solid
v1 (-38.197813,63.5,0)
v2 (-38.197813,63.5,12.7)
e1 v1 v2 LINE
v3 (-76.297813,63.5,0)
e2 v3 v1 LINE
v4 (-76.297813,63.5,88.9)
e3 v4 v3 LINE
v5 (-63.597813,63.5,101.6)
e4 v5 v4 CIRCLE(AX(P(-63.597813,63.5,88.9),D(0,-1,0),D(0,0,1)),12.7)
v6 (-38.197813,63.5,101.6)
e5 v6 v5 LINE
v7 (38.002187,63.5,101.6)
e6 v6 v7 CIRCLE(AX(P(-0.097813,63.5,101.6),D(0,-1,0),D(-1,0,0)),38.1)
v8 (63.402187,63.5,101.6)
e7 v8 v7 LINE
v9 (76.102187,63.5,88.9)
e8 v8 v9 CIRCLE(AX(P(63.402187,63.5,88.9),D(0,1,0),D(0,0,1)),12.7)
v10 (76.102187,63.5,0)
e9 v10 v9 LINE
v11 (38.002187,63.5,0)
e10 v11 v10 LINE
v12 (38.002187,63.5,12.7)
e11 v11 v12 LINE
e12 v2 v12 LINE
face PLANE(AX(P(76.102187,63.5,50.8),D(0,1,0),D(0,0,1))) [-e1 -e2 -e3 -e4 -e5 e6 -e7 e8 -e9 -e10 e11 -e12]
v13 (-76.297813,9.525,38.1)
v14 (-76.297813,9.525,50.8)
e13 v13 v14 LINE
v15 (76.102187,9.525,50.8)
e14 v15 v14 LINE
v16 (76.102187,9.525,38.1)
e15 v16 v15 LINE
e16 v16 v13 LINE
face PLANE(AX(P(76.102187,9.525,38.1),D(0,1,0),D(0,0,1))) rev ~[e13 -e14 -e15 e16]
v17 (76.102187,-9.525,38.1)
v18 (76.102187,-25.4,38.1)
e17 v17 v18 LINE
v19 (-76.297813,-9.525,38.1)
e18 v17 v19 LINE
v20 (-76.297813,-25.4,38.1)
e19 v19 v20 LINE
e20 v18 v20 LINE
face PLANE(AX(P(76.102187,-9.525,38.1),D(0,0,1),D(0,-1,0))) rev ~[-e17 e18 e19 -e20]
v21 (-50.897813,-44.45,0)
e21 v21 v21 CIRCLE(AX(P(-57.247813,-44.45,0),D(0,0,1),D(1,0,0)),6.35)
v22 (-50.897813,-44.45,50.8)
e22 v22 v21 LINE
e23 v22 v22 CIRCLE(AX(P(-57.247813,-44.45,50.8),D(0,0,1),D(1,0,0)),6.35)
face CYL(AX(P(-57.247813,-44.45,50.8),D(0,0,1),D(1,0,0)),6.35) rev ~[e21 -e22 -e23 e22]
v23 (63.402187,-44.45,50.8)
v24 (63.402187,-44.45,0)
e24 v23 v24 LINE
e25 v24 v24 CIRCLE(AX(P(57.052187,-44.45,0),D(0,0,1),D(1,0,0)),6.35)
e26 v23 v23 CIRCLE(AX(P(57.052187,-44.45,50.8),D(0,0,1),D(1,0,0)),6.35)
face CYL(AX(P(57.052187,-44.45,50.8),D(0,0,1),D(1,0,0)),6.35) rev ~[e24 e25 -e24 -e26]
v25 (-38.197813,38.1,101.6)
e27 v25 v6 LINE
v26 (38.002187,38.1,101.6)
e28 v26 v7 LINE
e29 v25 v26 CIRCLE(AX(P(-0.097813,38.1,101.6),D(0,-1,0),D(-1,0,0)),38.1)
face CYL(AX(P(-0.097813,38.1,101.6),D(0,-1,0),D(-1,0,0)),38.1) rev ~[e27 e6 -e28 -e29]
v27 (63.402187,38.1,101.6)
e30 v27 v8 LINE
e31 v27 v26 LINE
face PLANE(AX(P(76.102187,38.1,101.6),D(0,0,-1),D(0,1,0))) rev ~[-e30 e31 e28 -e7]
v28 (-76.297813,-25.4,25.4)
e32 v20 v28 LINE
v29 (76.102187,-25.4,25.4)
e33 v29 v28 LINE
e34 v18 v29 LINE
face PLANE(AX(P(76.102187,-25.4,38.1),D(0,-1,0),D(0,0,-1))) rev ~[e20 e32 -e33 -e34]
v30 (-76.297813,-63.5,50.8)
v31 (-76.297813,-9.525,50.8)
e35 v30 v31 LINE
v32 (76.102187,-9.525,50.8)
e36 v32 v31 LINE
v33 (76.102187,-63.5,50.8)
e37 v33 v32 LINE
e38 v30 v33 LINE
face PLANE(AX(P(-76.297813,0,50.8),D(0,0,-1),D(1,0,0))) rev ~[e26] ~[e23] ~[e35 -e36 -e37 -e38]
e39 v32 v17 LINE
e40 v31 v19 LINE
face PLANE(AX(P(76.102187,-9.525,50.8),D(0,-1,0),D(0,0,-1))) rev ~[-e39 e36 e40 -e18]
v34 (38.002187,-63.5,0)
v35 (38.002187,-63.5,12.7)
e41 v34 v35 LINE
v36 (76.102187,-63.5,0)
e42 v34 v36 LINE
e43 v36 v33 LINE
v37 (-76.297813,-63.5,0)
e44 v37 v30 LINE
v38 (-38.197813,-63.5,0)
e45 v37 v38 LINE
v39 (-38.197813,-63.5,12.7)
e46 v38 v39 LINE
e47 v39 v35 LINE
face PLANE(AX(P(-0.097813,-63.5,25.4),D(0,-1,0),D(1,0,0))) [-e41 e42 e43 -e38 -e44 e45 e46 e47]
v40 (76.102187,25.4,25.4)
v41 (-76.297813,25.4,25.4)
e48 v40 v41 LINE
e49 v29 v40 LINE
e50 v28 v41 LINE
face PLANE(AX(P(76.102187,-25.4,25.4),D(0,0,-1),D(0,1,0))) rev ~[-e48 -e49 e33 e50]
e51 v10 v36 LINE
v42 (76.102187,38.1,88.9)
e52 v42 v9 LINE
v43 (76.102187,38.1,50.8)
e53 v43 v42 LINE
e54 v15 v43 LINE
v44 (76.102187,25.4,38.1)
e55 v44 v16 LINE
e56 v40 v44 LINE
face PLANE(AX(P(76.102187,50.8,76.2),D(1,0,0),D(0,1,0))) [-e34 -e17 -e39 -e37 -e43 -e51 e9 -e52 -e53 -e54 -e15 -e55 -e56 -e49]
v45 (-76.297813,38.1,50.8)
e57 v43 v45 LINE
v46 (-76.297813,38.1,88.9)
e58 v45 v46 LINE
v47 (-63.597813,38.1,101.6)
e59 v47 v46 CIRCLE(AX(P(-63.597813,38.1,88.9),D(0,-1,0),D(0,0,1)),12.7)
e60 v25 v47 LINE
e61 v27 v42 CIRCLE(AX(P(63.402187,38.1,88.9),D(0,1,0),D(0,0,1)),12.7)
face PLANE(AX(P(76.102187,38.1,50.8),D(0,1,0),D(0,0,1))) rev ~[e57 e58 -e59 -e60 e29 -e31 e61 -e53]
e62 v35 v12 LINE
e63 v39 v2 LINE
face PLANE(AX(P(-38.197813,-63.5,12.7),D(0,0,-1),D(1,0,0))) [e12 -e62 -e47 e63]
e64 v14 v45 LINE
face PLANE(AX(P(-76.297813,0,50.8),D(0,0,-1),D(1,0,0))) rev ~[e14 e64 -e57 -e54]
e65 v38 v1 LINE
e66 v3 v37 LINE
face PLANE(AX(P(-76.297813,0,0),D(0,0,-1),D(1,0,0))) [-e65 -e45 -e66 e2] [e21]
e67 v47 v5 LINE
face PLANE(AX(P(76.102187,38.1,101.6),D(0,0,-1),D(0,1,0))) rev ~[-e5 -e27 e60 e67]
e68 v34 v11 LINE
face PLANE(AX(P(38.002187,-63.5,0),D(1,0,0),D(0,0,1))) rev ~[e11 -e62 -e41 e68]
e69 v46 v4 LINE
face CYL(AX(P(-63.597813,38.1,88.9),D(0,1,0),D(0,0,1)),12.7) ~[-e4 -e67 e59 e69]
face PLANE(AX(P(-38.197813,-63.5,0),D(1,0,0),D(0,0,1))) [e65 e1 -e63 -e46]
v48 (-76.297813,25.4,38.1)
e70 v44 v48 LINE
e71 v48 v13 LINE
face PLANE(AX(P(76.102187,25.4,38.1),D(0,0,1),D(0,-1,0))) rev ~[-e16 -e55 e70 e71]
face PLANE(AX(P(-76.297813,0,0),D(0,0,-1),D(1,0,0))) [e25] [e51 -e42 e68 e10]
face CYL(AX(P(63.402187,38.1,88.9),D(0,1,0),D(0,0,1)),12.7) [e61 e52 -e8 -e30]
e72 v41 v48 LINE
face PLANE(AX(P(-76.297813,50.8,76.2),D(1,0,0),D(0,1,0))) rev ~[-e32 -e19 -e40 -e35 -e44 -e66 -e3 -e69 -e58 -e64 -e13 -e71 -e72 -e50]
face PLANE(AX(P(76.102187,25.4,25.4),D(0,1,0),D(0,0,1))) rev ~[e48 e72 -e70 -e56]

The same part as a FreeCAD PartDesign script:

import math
import FreeCAD as App
import Part
import Sketcher
from FreeCAD import Vector
Q = App.Units.Quantity


def edges_at(feature, points):
    """Names of the edges that pass closest to the given points."""
    edges = feature.Shape.Edges
    near = lambda p: min(range(len(edges)), key=lambda i: edges[i].distToShape(Part.Vertex(*p))[0])
    return sorted({f"Edge{near(p) + 1}" for p in points})

doc = App.newDocument("Part")
body = doc.addObject("PartDesign::Body", "Body")

# Sketch on XZ plane
sketch1 = body.newObject("Sketcher::SketchObject", "Sketch")
sketch1.AttachmentSupport = (doc.getObject("XZ_Plane"), [""])
sketch1.MapMode = "FlatFace"
sketch1.addGeometry([
    Part.LineSegment(Vector(-76, 51, 0), Vector(-76, 0, 0)),
    Part.LineSegment(Vector(-76, 0, 0), Vector(76, 0, 0)),
    Part.LineSegment(Vector(76, 0, 0), Vector(76, 51, 0)),
    Part.LineSegment(Vector(76, 51, 0), Vector(-76, 51, 0)),
], False)
sketch1.addConstraint([
    Sketcher.Constraint("Coincident", 0, 2, 1, 1),
    Sketcher.Constraint("Coincident", 1, 2, 2, 1),
    Sketcher.Constraint("Coincident", 2, 2, 3, 1),
    Sketcher.Constraint("Coincident", 3, 2, 0, 1),
    Sketcher.Constraint("Vertical", 0),
    Sketcher.Constraint("Horizontal", 1),
    Sketcher.Constraint("Vertical", 2),
    Sketcher.Constraint("Horizontal", 3),
    Sketcher.Constraint("PointOnObject", 0, 2, -1),
    Sketcher.Constraint("DistanceX", 1, 1, 1, 2, Q("6 in")),
    Sketcher.Constraint("DistanceY", 0, 2, 0, 1, Q("2 in")),
    Sketcher.Constraint("DistanceX", 0, 2, -1, 1, 76.297813),
])
pad1 = body.newObject("PartDesign::Pad", "Pad")
pad1.Profile = sketch1
pad1.Length = Q("5 in")
pad1.Midplane = True

# Sketch on XZ plane
sketch2 = body.newObject("Sketcher::SketchObject", "Sketch001")
sketch2.AttachmentSupport = (doc.getObject("XZ_Plane"), [""])
sketch2.MapMode = "FlatFace"
sketch2.AttachmentOffset = App.Placement(Vector(0, 0, 2.5 * 25.4), App.Rotation())
sketch2.addGeometry([
    Part.LineSegment(Vector(-38, 13, 0), Vector(-38, 0, 0)),
    Part.LineSegment(Vector(-38, 0, 0), Vector(38, 0, 0)),
    Part.LineSegment(Vector(38, 0, 0), Vector(38, 13, 0)),
    Part.LineSegment(Vector(38, 13, 0), Vector(-38, 13, 0)),
], False)
sketch2.addConstraint([
    Sketcher.Constraint("Coincident", 0, 2, 1, 1),
    Sketcher.Constraint("Coincident", 1, 2, 2, 1),
    Sketcher.Constraint("Coincident", 2, 2, 3, 1),
    Sketcher.Constraint("Coincident", 3, 2, 0, 1),
    Sketcher.Constraint("Vertical", 0),
    Sketcher.Constraint("Horizontal", 1),
    Sketcher.Constraint("Vertical", 2),
    Sketcher.Constraint("Horizontal", 3),
    Sketcher.Constraint("PointOnObject", 0, 2, -1),
    Sketcher.Constraint("DistanceX", 1, 1, 1, 2, Q("3 in")),
    Sketcher.Constraint("DistanceY", 0, 2, 0, 1, Q("0.5 in")),
    Sketcher.Constraint("DistanceX", 0, 2, -1, 1, 38.197813),
])
pocket1 = body.newObject("PartDesign::Pocket", "Pocket")
pocket1.Profile = sketch2
pocket1.Type = "ThroughAll"

# Sketch on YZ plane
sketch3 = body.newObject("Sketcher::SketchObject", "Sketch002")
sketch3.AttachmentSupport = (doc.getObject("YZ_Plane"), [""])
sketch3.MapMode = "FlatFace"
sketch3.AttachmentOffset = App.Placement(Vector(0, 0, 76.102187), App.Rotation())
sketch3.addGeometry([
    Part.LineSegment(Vector(-25, 38, 0), Vector(-25, 25, 0)),  # 0
    Part.LineSegment(Vector(-25, 25, 0), Vector(25, 25, 0)),  # 1
    Part.LineSegment(Vector(25, 25, 0), Vector(25, 38, 0)),  # 2
    Part.LineSegment(Vector(25, 38, 0), Vector(10, 38, 0)),  # 3
    Part.LineSegment(Vector(10, 38, 0), Vector(10, 51, 0)),  # 4
    Part.LineSegment(Vector(10, 51, 0), Vector(-10, 51, 0)),  # 5
    Part.LineSegment(Vector(-10, 51, 0), Vector(-10, 38, 0)),  # 6
    Part.LineSegment(Vector(-10, 38, 0), Vector(-25, 38, 0)),  # 7
], False)
sketch3.addConstraint([
    Sketcher.Constraint("Coincident", 0, 2, 1, 1),
    Sketcher.Constraint("Coincident", 1, 2, 2, 1),
    Sketcher.Constraint("Coincident", 2, 2, 3, 1),
    Sketcher.Constraint("Coincident", 3, 2, 4, 1),
    Sketcher.Constraint("Coincident", 4, 2, 5, 1),
    Sketcher.Constraint("Coincident", 5, 2, 6, 1),
    Sketcher.Constraint("Coincident", 6, 2, 7, 1),
    Sketcher.Constraint("Coincident", 7, 2, 0, 1),
    Sketcher.Constraint("Vertical", 0),
    Sketcher.Constraint("Horizontal", 1),
    Sketcher.Constraint("Vertical", 2),
    Sketcher.Constraint("Horizontal", 3),
    Sketcher.Constraint("Vertical", 4),
    Sketcher.Constraint("Horizontal", 5),
    Sketcher.Constraint("Vertical", 6),
    Sketcher.Constraint("Horizontal", 7),
    Sketcher.Constraint("Symmetric", 3, 2, 6, 2, -2),
    Sketcher.Constraint("Equal", 3, 7),
    Sketcher.Constraint("Equal", 2, 4),
    Sketcher.Constraint("DistanceX", 1, 1, 1, 2, Q("2 in")),
    Sketcher.Constraint("DistanceY", 0, 2, 0, 1, Q("0.5 in")),
    Sketcher.Constraint("DistanceY", -1, 1, 0, 2, Q("1 in")),
    Sketcher.Constraint("DistanceX", 5, 2, 5, 1, Q("0.75 in")),
])
pocket2 = body.newObject("PartDesign::Pocket", "Pocket001")
pocket2.Profile = sketch3
pocket2.Type = "ThroughAll"

# Sketch on YZ plane
sketch4 = body.newObject("Sketcher::SketchObject", "Sketch003")
sketch4.AttachmentSupport = (doc.getObject("YZ_Plane"), [""])
sketch4.MapMode = "FlatFace"
sketch4.AttachmentOffset = App.Placement(Vector(0, 0, 76.102187), App.Rotation())
sketch4.addGeometry([
    Part.LineSegment(Vector(38, 102, 0), Vector(38, 51, 0)),
    Part.LineSegment(Vector(38, 51, 0), Vector(64, 51, 0)),
    Part.LineSegment(Vector(64, 51, 0), Vector(64, 102, 0)),
    Part.LineSegment(Vector(64, 102, 0), Vector(38, 102, 0)),
], False)
sketch4.addConstraint([
    Sketcher.Constraint("Coincident", 0, 2, 1, 1),
    Sketcher.Constraint("Coincident", 1, 2, 2, 1),
    Sketcher.Constraint("Coincident", 2, 2, 3, 1),
    Sketcher.Constraint("Coincident", 3, 2, 0, 1),
    Sketcher.Constraint("Vertical", 0),
    Sketcher.Constraint("Horizontal", 1),
    Sketcher.Constraint("Vertical", 2),
    Sketcher.Constraint("Horizontal", 3),
    Sketcher.Constraint("DistanceX", 1, 1, 1, 2, Q("1 in")),
    Sketcher.Constraint("DistanceY", 0, 2, 0, 1, Q("2 in")),
    Sketcher.Constraint("DistanceY", -1, 1, 0, 2, Q("2 in")),
    Sketcher.Constraint("DistanceX", -1, 1, 0, 2, Q("1.5 in")),
])
pad2 = body.newObject("PartDesign::Pad", "Pad001")
pad2.Profile = sketch4
pad2.Length = Q("6 in")
pad2.Reversed = True

# Sketch on XZ plane
sketch5 = body.newObject("Sketcher::SketchObject", "Sketch004")
sketch5.AttachmentSupport = (doc.getObject("XZ_Plane"), [""])
sketch5.MapMode = "FlatFace"
sketch5.AttachmentOffset = App.Placement(Vector(0, 0, -1.5 * 25.4), App.Rotation())
sketch5.addGeometry([
    Part.LineSegment(Vector(38, 102, 0), Vector(-38, 102, 0)),
    Part.ArcOfCircle(Part.Circle(Vector(0, 102, 0), Vector(0, 0, 1), 38), math.radians(180), math.radians(360)),
], False)
sketch5.addConstraint([
    Sketcher.Constraint("Coincident", 0, 1, 1, 2),
    Sketcher.Constraint("Coincident", 1, 1, 0, 2),
    Sketcher.Constraint("Horizontal", 0),
    Sketcher.Constraint("Horizontal", 1, 3, 0, 1),
    Sketcher.Constraint("Radius", 1, Q("1.5 in")),
    Sketcher.Constraint("DistanceY", -1, 1, 1, 3, Q("4 in")),
    Sketcher.Constraint("DistanceX", 1, 3, -1, 1, 0.097813),
])
pocket3 = body.newObject("PartDesign::Pocket", "Pocket002")
pocket3.Profile = sketch5
pocket3.Type = "ThroughAll"
doc.recompute()

fillet = body.newObject("PartDesign::Fillet", "Fillet")
fillet.Base = (pocket3, edges_at(pocket3, [(-76.298, 50.8, 101.6)]))
fillet.Radius = Q("0.5 in")
doc.recompute()

fillet2 = body.newObject("PartDesign::Fillet", "Fillet001")
fillet2.Base = (fillet, edges_at(fillet, [(76.102, 50.8, 101.6)]))
fillet2.Radius = Q("0.5 in")

# Sketch on XY plane
sketch6 = body.newObject("Sketcher::SketchObject", "Sketch005")
sketch6.AttachmentSupport = (doc.getObject("XY_Plane"), [""])
sketch6.MapMode = "FlatFace"
sketch6.AttachmentOffset = App.Placement(Vector(0, 0, 2 * 25.4), App.Rotation())
sketch6.addGeometry([
    Part.Circle(Vector(-57, -44, 0), Vector(0, 0, 1), 6),
    Part.Circle(Vector(57, -44, 0), Vector(0, 0, 1), 6),
], False)
sketch6.addConstraint([
    Sketcher.Constraint("Equal", 0, 1),
    Sketcher.Constraint("Horizontal", 0, 3, 1, 3),
    Sketcher.Constraint("Diameter", 0, Q("0.5 in")),
    Sketcher.Constraint("DistanceX", 0, 3, 1, 3, Q("4.5 in")),
    Sketcher.Constraint("DistanceY", 0, 3, -1, 1, Q("1.75 in")),
    Sketcher.Constraint("DistanceX", 0, 3, -1, 1, 57.247813),
])
pocket4 = body.newObject("PartDesign::Pocket", "Pocket003")
pocket4.Profile = sketch6
pocket4.Type = "ThroughAll"

doc.recompute()
